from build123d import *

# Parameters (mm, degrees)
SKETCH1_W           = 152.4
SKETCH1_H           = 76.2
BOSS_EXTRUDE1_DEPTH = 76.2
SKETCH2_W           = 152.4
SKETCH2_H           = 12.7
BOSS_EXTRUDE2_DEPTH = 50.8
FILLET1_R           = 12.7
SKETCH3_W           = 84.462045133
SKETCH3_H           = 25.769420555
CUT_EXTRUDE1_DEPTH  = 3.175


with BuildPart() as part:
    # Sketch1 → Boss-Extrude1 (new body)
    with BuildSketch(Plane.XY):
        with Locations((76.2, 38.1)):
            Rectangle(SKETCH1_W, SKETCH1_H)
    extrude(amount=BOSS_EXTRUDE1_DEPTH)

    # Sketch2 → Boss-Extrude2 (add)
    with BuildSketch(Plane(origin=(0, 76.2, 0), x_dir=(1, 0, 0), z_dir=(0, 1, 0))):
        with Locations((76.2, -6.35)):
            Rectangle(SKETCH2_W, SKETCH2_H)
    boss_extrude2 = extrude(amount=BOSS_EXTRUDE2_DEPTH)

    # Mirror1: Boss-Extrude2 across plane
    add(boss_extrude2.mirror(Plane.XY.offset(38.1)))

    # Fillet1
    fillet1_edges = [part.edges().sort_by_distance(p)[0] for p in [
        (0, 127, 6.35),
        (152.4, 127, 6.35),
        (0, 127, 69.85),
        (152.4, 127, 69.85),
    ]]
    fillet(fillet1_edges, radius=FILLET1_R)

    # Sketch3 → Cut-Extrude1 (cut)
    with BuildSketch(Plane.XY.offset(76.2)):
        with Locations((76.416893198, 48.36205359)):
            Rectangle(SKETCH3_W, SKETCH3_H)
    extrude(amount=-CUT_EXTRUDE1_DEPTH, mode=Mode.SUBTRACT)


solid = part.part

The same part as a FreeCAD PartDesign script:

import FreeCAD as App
import Part
import Sketcher
from FreeCAD import Vector
Q = App.Units.Quantity


def edges_at(feature, points):
    """Names of the edges that pass closest to the given points."""
    edges = feature.Shape.Edges
    near = lambda p: min(range(len(edges)), key=lambda i: edges[i].distToShape(Part.Vertex(*p))[0])
    return sorted({f"Edge{near(p) + 1}" for p in points})


def add_polygon(sketch, points):
    """Adds a closed chain of lines whose ends are joined by coincident constraints."""
    first, n = sketch.GeometryCount, len(points)
    for a, b in zip(points, points[1:] + points[:1]):
        sketch.addGeometry(Part.LineSegment(App.Vector(*a, 0), App.Vector(*b, 0)), False)
    for i in range(n):
        sketch.addConstraint(Sketcher.Constraint("Coincident", first + i, 2, first + (i + 1) % n, 1))

doc = App.newDocument("Part")
body = doc.addObject("PartDesign::Body", "Body")

# Sketch on XY plane
sketch1 = body.newObject("Sketcher::SketchObject", "Sketch")
sketch1.AttachmentSupport = (doc.getObject("XY_Plane"), [""])
sketch1.MapMode = "FlatFace"
add_polygon(sketch1, [(0, 76.2), (0, 0), (152.4, 0), (152.4, 76.2)])  # lines 0-3
sketch1.addConstraint(Sketcher.Constraint("Vertical", 0))
sketch1.addConstraint(Sketcher.Constraint("Horizontal", 1))
sketch1.addConstraint(Sketcher.Constraint("Vertical", 2))
sketch1.addConstraint(Sketcher.Constraint("Horizontal", 3))
sketch1.addConstraint(Sketcher.Constraint("Coincident", 0, 2, -1, 1))
sketch1.addConstraint(Sketcher.Constraint("DistanceX", 1, 1, 1, 2, Q("6 in")))
sketch1.addConstraint(Sketcher.Constraint("DistanceY", 0, 2, 0, 1, Q("3 in")))
pad1 = body.newObject("PartDesign::Pad", "Pad")
pad1.Profile = sketch1
pad1.Length = Q("3 in")

# Sketch on XZ plane
sketch2 = body.newObject("Sketcher::SketchObject", "Sketch001")
sketch2.AttachmentSupport = (doc.getObject("XZ_Plane"), [""])
sketch2.MapMode = "FlatFace"
sketch2.AttachmentOffset = App.Placement(Vector(0, 0, -3 * 25.4), App.Rotation())
add_polygon(sketch2, [(0, 0), (0, 12.7), (152.4, 12.7), (152.4, 0)])  # lines 0-3
sketch2.addConstraint(Sketcher.Constraint("Vertical", 0))
sketch2.addConstraint(Sketcher.Constraint("Horizontal", 1))
sketch2.addConstraint(Sketcher.Constraint("Vertical", 2))
sketch2.addConstraint(Sketcher.Constraint("Horizontal", 3))
sketch2.addConstraint(Sketcher.Constraint("Coincident", 3, 2, -1, 1))
sketch2.addConstraint(Sketcher.Constraint("DistanceX", 1, 1, 1, 2, Q("6 in")))
sketch2.addConstraint(Sketcher.Constraint("DistanceY", 0, 1, 0, 2, Q("0.5 in")))
pad2 = body.newObject("PartDesign::Pad", "Pad001")
pad2.Profile = sketch2
pad2.Length = Q("2 in")
pad2.Reversed = True
doc.recompute()

datumplane = body.newObject("PartDesign::Plane", "DatumPlane")
datumplane.AttachmentSupport = (doc.getObject("XY_Plane"), [""])
datumplane.MapMode = "FlatFace"
datumplane.AttachmentOffset = App.Placement(Vector(0, 0, 1.5 * 25.4), App.Rotation())
mirrored = body.newObject("PartDesign::Mirrored", "Mirrored")
mirrored.Originals = [pad2]
mirrored.MirrorPlane = (datumplane, [""])
body.Tip = mirrored
doc.recompute()

fillet = body.newObject("PartDesign::Fillet", "Fillet")
fillet.Base = (mirrored, edges_at(mirrored, [
    (0, 127, 6.35),
    (152.4, 127, 6.35),
    (0, 127, 69.85),
    (152.4, 127, 69.85),
]))
fillet.Radius = Q("0.5 in")

# Sketch on XY plane
sketch3 = body.newObject("Sketcher::SketchObject", "Sketch002")
sketch3.AttachmentSupport = (doc.getObject("XY_Plane"), [""])
sketch3.MapMode = "FlatFace"
sketch3.AttachmentOffset = App.Placement(Vector(0, 0, 3 * 25.4), App.Rotation())
add_polygon(sketch3, [(34.185871, 61.246764), (34.185871, 35.477343), (118.647916, 35.477343), (118.647916, 61.246764)])  # lines 0-3
sketch3.addConstraint(Sketcher.Constraint("Vertical", 0))
sketch3.addConstraint(Sketcher.Constraint("Horizontal", 1))
sketch3.addConstraint(Sketcher.Constraint("Vertical", 2))
sketch3.addConstraint(Sketcher.Constraint("Horizontal", 3))
sketch3.addConstraint(Sketcher.Constraint("DistanceY", 0, 2, 0, 1, 25.769421))
sketch3.addConstraint(Sketcher.Constraint("DistanceX", 1, 1, 1, 2, 84.462045))
sketch3.addConstraint(Sketcher.Constraint("DistanceX", -1, 1, 0, 2, 34.185871))
sketch3.addConstraint(Sketcher.Constraint("DistanceY", -1, 1, 0, 2, 35.477343))
pocket1 = body.newObject("PartDesign::Pocket", "Pocket")
pocket1.Profile = sketch3
pocket1.Length = Q("0.125 in")

doc.recompute()
